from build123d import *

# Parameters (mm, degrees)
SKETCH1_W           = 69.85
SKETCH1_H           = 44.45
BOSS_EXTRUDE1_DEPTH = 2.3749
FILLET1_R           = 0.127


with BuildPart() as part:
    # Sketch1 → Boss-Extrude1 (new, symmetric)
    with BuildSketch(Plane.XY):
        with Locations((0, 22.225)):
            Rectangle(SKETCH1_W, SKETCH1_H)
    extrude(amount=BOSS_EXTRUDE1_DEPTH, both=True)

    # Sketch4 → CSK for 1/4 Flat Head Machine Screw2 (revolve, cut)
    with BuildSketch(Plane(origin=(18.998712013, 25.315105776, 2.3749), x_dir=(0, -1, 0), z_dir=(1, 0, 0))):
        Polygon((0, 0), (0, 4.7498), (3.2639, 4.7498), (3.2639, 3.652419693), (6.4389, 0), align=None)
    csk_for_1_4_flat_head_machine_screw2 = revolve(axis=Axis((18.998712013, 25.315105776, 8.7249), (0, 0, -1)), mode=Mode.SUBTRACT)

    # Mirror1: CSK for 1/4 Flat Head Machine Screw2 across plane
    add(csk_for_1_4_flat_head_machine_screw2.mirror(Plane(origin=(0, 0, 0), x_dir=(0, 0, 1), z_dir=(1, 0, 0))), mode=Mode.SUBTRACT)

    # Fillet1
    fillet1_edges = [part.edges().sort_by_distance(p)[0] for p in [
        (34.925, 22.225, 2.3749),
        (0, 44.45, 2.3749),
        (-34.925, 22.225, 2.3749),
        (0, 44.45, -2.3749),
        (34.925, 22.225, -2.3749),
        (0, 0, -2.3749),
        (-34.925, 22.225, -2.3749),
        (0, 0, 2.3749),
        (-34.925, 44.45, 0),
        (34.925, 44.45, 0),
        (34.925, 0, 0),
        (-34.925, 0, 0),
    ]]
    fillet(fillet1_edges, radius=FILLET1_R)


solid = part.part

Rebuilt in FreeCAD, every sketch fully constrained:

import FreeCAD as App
import Part
import Sketcher
Q = App.Units.Quantity


def edges_at(feature, points):
    """Names of the edges that pass closest to the given points."""
    edges = feature.Shape.Edges
    near = lambda p: min(range(len(edges)), key=lambda i: edges[i].distToShape(Part.Vertex(*p))[0])
    return sorted({f"Edge{near(p) + 1}" for p in points})

doc = App.newDocument("Part")
body = doc.addObject("PartDesign::Body", "Body")

# Sketch on XY plane
sketch1 = doc.addObject("Sketcher::SketchObject", "Sketch")
body.addObject(sketch1)
sketch1.AttachmentSupport = (doc.XY_Plane, [""])
sketch1.MapMode = "FlatFace"
sketch1.addGeometry([
    Part.LineSegment(App.Vector(-34.925, 44.45, 0), App.Vector(-34.925, 0, 0)),
    Part.LineSegment(App.Vector(-34.925, 0, 0), App.Vector(34.925, 0, 0)),
    Part.LineSegment(App.Vector(34.925, 0, 0), App.Vector(34.925, 44.45, 0)),
    Part.LineSegment(App.Vector(34.925, 44.45, 0), App.Vector(-34.925, 44.45, 0)),
], False)
sketch1.addConstraint([
    Sketcher.Constraint("Coincident", 0, 2, 1, 1),
    Sketcher.Constraint("Coincident", 1, 2, 2, 1),
    Sketcher.Constraint("Coincident", 2, 2, 3, 1),
    Sketcher.Constraint("Coincident", 3, 2, 0, 1),
    Sketcher.Constraint("Vertical", 0),
    Sketcher.Constraint("Horizontal", 1),
    Sketcher.Constraint("Vertical", 2),
    Sketcher.Constraint("Horizontal", 3),
    Sketcher.Constraint("Symmetric", 0, 2, 1, 2, -1, 1),
    Sketcher.Constraint("DistanceX", 1, 1, 1, 2, Q("2.75 in")),
    Sketcher.Constraint("DistanceY", 0, 2, 0, 1, Q("1.75 in")),
])
pad1 = doc.addObject("PartDesign::Pad", "Pad")
body.addObject(pad1)
pad1.Profile = sketch1
pad1.Length = Q("0.187 in")
pad1.Midplane = True

# Sketch on YZ plane
sketch2 = doc.addObject("Sketcher::SketchObject", "Sketch001")
body.addObject(sketch2)
sketch2.AttachmentSupport = (doc.YZ_Plane, [""])
sketch2.MapMode = "FlatFace"
sketch2.AttachmentOffset = App.Placement(App.Vector(0, 0, 18.998712), App.Rotation())
sketch2.addGeometry([
    Part.LineSegment(App.Vector(25.315106, -2.3749, 0), App.Vector(25.315106, 2.3749, 0)),  # 0
    Part.LineSegment(App.Vector(25.315106, 2.3749, 0), App.Vector(18.876206, 2.3749, 0)),  # 1
    Part.LineSegment(App.Vector(18.876206, 2.3749, 0), App.Vector(22.051206, -1.27752, 0)),  # 2
    Part.LineSegment(App.Vector(22.051206, -1.27752, 0), App.Vector(22.051206, -2.3749, 0)),  # 3
    Part.LineSegment(App.Vector(22.051206, -2.3749, 0), App.Vector(25.315106, -2.3749, 0)),  # 4
], False)
sketch2.addGeometry(Part.LineSegment(App.Vector(25.315106, 2.3749, 0), App.Vector(25.315106, -2.3749, 0)), True)  # axis
sketch2.addConstraint([
    Sketcher.Constraint("Coincident", 0, 2, 1, 1),
    Sketcher.Constraint("Coincident", 1, 2, 2, 1),
    Sketcher.Constraint("Coincident", 2, 2, 3, 1),
    Sketcher.Constraint("Coincident", 3, 2, 4, 1),
    Sketcher.Constraint("Coincident", 4, 2, 0, 1),
    Sketcher.Constraint("Vertical", 0),
    Sketcher.Constraint("Horizontal", 1),
    Sketcher.Constraint("Vertical", 3),
    Sketcher.Constraint("Horizontal", 4),
    Sketcher.Constraint("Vertical", 5),
    Sketcher.Constraint("Coincident", 5, 1, 0, 2),
    Sketcher.Constraint("Horizontal", 3, 2, 5, 2),
    Sketcher.Constraint("Angle", 2, Q("-49 deg")),
    Sketcher.Constraint("DistanceY", 0, 1, 0, 2, Q("0.187 in")),
    Sketcher.Constraint("DistanceX", 1, 2, 1, 1, Q("0.2535 in")),
    Sketcher.Constraint("DistanceX", 4, 1, 4, 2, Q("0.1285 in")),
    Sketcher.Constraint("DistanceY", -1, 1, 0, 2, Q("0.0935 in")),
    Sketcher.Constraint("DistanceX", -1, 1, 0, 2, Q("25.315106 mm")),
])
groove = doc.addObject("PartDesign::Groove", "Groove")
body.addObject(groove)
groove.Profile = sketch2
groove.ReferenceAxis = (sketch2, ["Axis0"])
groove.Angle = 360
doc.recompute()

mirrored = doc.addObject("PartDesign::Mirrored", "Mirrored")
body.addObject(mirrored)
mirrored.Originals = [groove]
mirrored.MirrorPlane = (doc.YZ_Plane, [""])
body.Tip = mirrored
doc.recompute()

fillet = doc.addObject("PartDesign::Fillet", "Fillet")
body.addObject(fillet)
fillet.Base = (mirrored, edges_at(mirrored, [
    (34.925, 22.225, 2.375),
    (0, 44.45, 2.375),
    (-34.925, 22.225, 2.375),
    (0, 44.45, -2.375),
    (34.925, 22.225, -2.375),
    (0, 0, -2.375),
    (-34.925, 22.225, -2.375),
    (0, 0, 2.375),
    (-34.925, 44.45, 0),
    (34.925, 44.45, 0),
    (34.925, 0, 0),
    (-34.925, 0, 0),
]))
fillet.Radius = Q("0.005 in")

doc.recompute()
